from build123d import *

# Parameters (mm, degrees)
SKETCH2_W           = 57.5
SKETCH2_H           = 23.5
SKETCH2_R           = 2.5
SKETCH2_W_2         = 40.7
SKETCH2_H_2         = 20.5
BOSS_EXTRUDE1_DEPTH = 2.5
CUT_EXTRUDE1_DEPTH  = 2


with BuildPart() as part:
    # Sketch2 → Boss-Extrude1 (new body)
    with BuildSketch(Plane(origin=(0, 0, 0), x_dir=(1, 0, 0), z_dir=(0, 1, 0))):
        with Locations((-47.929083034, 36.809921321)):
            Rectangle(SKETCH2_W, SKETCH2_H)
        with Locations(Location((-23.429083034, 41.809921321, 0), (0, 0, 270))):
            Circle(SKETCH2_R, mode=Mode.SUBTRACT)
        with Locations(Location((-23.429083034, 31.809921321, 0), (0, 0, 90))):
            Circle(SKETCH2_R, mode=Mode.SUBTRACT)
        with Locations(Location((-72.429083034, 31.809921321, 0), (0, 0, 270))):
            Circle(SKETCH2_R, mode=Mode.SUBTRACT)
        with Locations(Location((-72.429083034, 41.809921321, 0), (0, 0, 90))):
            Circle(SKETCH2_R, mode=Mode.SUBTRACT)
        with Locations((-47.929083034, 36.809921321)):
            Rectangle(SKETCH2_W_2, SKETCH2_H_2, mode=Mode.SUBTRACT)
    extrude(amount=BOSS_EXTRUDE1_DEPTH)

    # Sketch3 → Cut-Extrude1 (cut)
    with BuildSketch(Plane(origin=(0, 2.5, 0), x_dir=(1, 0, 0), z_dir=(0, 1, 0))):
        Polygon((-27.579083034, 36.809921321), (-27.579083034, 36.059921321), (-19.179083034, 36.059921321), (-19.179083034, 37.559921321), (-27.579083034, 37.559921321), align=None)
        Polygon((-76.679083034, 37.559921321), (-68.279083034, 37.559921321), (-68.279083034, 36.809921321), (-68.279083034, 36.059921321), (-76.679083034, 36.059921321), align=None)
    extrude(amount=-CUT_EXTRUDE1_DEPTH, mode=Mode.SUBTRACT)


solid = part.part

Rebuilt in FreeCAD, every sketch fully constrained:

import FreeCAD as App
import Part
import Sketcher
from FreeCAD import Vector


def add_polygon(sketch, points):
    """Adds a closed chain of lines whose ends are joined by coincident constraints."""
    first, n = sketch.GeometryCount, len(points)
    for a, b in zip(points, points[1:] + points[:1]):
        sketch.addGeometry(Part.LineSegment(App.Vector(*a, 0), App.Vector(*b, 0)), False)
    for i in range(n):
        sketch.addConstraint(Sketcher.Constraint("Coincident", first + i, 2, first + (i + 1) % n, 1))

doc = App.newDocument("Part")
params = doc.addObject("Spreadsheet::Sheet", "Params")
for row, (alias, value) in enumerate([
    ("sketch1_diameter", "5 mm"),
    ("sketch1_width", "57.5 mm"),
    ("sketch1_width2", "40.7 mm"),
    ("sketch1_height", "23.5 mm"),
    ("sketch1_height2", "20.5 mm"),
    ("pad1_length", "2.5 mm"),
    ("sketch2_width", "8.4 mm"),
    ("sketch2_height", "1.5 mm"),
    ("pocket1_length", "2 mm"),
], start=1):
    params.set(f"A{row}", alias)
    params.set(f"B{row}", "=" + value)
    params.setAlias(f"B{row}", alias)

body = doc.addObject("PartDesign::Body", "Body")

sketch1 = doc.addObject("Sketcher::SketchObject", "Sketch")
body.addObject(sketch1)
sketch1.AttachmentSupport = (doc.XZ_Plane, [""])
sketch1.MapMode = "FlatFace"
add_polygon(sketch1, [(-76.7, -48.6), (-76.7, -25.1), (-19.2, -25.1), (-19.2, -48.6)])
sketch1.addGeometry(Part.Circle(Vector(-72.4, -31.8, 0), Vector(0, 0, 1), 2.5), False)
sketch1.addGeometry(Part.Circle(Vector(-23.4, -31.8, 0), Vector(0, 0, 1), 2.5), False)
sketch1.addGeometry(Part.Circle(Vector(-72.4, -41.8, 0), Vector(0, 0, 1), 2.5), False)
add_polygon(sketch1, [(-27.6, -26.6), (-68.3, -26.6), (-68.3, -47.1), (-27.6, -47.1)])
sketch1.addGeometry(Part.Circle(Vector(-23.4, -41.8, 0), Vector(0, 0, 1), 2.5), False)
sketch1.addConstraint(Sketcher.Constraint("Vertical", 0))
sketch1.addConstraint(Sketcher.Constraint("Horizontal", 1))
sketch1.addConstraint(Sketcher.Constraint("Vertical", 2))
sketch1.addConstraint(Sketcher.Constraint("Horizontal", 3))
sketch1.addConstraint(Sketcher.Constraint("Horizontal", 7))
sketch1.addConstraint(Sketcher.Constraint("Vertical", 8))
sketch1.addConstraint(Sketcher.Constraint("Horizontal", 9))
sketch1.addConstraint(Sketcher.Constraint("Vertical", 10))
sketch1.addConstraint(Sketcher.Constraint("Equal", 4, 5))
sketch1.addConstraint(Sketcher.Constraint("Equal", 5, 6))
sketch1.addConstraint(Sketcher.Constraint("Equal", 6, 11))
sketch1.addConstraint(Sketcher.Constraint("Horizontal", 4, 3, 5, 3))
sketch1.addConstraint(Sketcher.Constraint("Horizontal", 6, 3, 11, 3))
sketch1.addConstraint(Sketcher.Constraint("Vertical", 4, 3, 6, 3))
sketch1.addConstraint(Sketcher.Constraint("Vertical", 5, 3, 11, 3))
sketch1.addConstraint(Sketcher.Constraint("Diameter", 4, 5.0))
sketch1.addConstraint(Sketcher.Constraint("DistanceX", 1, 1, 1, 2, 57.5))
sketch1.addConstraint(Sketcher.Constraint("DistanceX", 7, 2, 7, 1, 40.7))
sketch1.addConstraint(Sketcher.Constraint("DistanceY", 0, 1, 0, 2, 23.5))
sketch1.addConstraint(Sketcher.Constraint("DistanceY", 8, 2, 8, 1, 20.5))
sketch1.addConstraint(Sketcher.Constraint("DistanceX", 4, 3, 5, 3, 49.0))
sketch1.addConstraint(Sketcher.Constraint("DistanceY", 6, 3, 4, 3, 10.0))
sketch1.addConstraint(Sketcher.Constraint("DistanceY", 3, 2, 7, 2, 22.0))
sketch1.addConstraint(Sketcher.Constraint("DistanceX", 0, 2, 7, 2, 8.4))
sketch1.addConstraint(Sketcher.Constraint("DistanceX", 0, 2, 4, 3, 4.25))
sketch1.addConstraint(Sketcher.Constraint("DistanceY", 4, 3, 0, 2, 6.75))
sketch1.addConstraint(Sketcher.Constraint("DistanceY", 4, 3, -1, 1, 31.809921))
sketch1.addConstraint(Sketcher.Constraint("DistanceX", 4, 3, -1, 1, 72.429083))
sketch1.setExpression("Constraints[23]", "Params.sketch1_diameter")
sketch1.setExpression("Constraints[24]", "Params.sketch1_width")
sketch1.setExpression("Constraints[25]", "Params.sketch1_width2")
sketch1.setExpression("Constraints[26]", "Params.sketch1_height")
sketch1.setExpression("Constraints[27]", "Params.sketch1_height2")
pad1 = doc.addObject("PartDesign::Pad", "Pad")
body.addObject(pad1)
pad1.Profile = sketch1
pad1.setExpression("Length", "Params.pad1_length")
pad1.Reversed = True

sketch2 = doc.addObject("Sketcher::SketchObject", "Sketch001")
body.addObject(sketch2)
sketch2.AttachmentSupport = (doc.XZ_Plane, [""])
sketch2.MapMode = "FlatFace"
sketch2.AttachmentOffset = App.Placement(Vector(0, 0, -2.5), App.Rotation())
add_polygon(sketch2, [(-27.6, -36.1), (-19.2, -36.1), (-19.2, -37.6), (-27.6, -37.6)])
add_polygon(sketch2, [(-68.3, -37.6), (-76.7, -37.6), (-76.7, -36.1), (-68.3, -36.1)])
sketch2.addConstraint(Sketcher.Constraint("Horizontal", 0))
sketch2.addConstraint(Sketcher.Constraint("Vertical", 1))
sketch2.addConstraint(Sketcher.Constraint("Horizontal", 2))
sketch2.addConstraint(Sketcher.Constraint("Vertical", 3))
sketch2.addConstraint(Sketcher.Constraint("Horizontal", 4))
sketch2.addConstraint(Sketcher.Constraint("Vertical", 5))
sketch2.addConstraint(Sketcher.Constraint("Horizontal", 6))
sketch2.addConstraint(Sketcher.Constraint("Vertical", 7))
sketch2.addConstraint(Sketcher.Constraint("Horizontal", 2, 2, 4, 2))
sketch2.addConstraint(Sketcher.Constraint("Horizontal", 3, 2, 5, 2))
sketch2.addConstraint(Sketcher.Constraint("Equal", 2, 4))
sketch2.addConstraint(Sketcher.Constraint("DistanceX", 0, 1, 0, 2, 8.4))
sketch2.addConstraint(Sketcher.Constraint("DistanceY", 1, 2, 1, 1, 1.5))
sketch2.addConstraint(Sketcher.Constraint("DistanceX", 4, 2, 2, 2, 49.1))
sketch2.addConstraint(Sketcher.Constraint("DistanceY", 0, 2, -1, 1, 36.059921))
sketch2.addConstraint(Sketcher.Constraint("DistanceX", 0, 2, -1, 1, 19.179083))
sketch2.setExpression("Constraints[19]", "Params.sketch2_width")
sketch2.setExpression("Constraints[20]", "Params.sketch2_height")
pocket1 = doc.addObject("PartDesign::Pocket", "Pocket")
body.addObject(pocket1)
pocket1.Profile = sketch2
pocket1.setExpression("Length", "Params.pocket1_length")
pocket1.Reversed = True

doc.recompute()
